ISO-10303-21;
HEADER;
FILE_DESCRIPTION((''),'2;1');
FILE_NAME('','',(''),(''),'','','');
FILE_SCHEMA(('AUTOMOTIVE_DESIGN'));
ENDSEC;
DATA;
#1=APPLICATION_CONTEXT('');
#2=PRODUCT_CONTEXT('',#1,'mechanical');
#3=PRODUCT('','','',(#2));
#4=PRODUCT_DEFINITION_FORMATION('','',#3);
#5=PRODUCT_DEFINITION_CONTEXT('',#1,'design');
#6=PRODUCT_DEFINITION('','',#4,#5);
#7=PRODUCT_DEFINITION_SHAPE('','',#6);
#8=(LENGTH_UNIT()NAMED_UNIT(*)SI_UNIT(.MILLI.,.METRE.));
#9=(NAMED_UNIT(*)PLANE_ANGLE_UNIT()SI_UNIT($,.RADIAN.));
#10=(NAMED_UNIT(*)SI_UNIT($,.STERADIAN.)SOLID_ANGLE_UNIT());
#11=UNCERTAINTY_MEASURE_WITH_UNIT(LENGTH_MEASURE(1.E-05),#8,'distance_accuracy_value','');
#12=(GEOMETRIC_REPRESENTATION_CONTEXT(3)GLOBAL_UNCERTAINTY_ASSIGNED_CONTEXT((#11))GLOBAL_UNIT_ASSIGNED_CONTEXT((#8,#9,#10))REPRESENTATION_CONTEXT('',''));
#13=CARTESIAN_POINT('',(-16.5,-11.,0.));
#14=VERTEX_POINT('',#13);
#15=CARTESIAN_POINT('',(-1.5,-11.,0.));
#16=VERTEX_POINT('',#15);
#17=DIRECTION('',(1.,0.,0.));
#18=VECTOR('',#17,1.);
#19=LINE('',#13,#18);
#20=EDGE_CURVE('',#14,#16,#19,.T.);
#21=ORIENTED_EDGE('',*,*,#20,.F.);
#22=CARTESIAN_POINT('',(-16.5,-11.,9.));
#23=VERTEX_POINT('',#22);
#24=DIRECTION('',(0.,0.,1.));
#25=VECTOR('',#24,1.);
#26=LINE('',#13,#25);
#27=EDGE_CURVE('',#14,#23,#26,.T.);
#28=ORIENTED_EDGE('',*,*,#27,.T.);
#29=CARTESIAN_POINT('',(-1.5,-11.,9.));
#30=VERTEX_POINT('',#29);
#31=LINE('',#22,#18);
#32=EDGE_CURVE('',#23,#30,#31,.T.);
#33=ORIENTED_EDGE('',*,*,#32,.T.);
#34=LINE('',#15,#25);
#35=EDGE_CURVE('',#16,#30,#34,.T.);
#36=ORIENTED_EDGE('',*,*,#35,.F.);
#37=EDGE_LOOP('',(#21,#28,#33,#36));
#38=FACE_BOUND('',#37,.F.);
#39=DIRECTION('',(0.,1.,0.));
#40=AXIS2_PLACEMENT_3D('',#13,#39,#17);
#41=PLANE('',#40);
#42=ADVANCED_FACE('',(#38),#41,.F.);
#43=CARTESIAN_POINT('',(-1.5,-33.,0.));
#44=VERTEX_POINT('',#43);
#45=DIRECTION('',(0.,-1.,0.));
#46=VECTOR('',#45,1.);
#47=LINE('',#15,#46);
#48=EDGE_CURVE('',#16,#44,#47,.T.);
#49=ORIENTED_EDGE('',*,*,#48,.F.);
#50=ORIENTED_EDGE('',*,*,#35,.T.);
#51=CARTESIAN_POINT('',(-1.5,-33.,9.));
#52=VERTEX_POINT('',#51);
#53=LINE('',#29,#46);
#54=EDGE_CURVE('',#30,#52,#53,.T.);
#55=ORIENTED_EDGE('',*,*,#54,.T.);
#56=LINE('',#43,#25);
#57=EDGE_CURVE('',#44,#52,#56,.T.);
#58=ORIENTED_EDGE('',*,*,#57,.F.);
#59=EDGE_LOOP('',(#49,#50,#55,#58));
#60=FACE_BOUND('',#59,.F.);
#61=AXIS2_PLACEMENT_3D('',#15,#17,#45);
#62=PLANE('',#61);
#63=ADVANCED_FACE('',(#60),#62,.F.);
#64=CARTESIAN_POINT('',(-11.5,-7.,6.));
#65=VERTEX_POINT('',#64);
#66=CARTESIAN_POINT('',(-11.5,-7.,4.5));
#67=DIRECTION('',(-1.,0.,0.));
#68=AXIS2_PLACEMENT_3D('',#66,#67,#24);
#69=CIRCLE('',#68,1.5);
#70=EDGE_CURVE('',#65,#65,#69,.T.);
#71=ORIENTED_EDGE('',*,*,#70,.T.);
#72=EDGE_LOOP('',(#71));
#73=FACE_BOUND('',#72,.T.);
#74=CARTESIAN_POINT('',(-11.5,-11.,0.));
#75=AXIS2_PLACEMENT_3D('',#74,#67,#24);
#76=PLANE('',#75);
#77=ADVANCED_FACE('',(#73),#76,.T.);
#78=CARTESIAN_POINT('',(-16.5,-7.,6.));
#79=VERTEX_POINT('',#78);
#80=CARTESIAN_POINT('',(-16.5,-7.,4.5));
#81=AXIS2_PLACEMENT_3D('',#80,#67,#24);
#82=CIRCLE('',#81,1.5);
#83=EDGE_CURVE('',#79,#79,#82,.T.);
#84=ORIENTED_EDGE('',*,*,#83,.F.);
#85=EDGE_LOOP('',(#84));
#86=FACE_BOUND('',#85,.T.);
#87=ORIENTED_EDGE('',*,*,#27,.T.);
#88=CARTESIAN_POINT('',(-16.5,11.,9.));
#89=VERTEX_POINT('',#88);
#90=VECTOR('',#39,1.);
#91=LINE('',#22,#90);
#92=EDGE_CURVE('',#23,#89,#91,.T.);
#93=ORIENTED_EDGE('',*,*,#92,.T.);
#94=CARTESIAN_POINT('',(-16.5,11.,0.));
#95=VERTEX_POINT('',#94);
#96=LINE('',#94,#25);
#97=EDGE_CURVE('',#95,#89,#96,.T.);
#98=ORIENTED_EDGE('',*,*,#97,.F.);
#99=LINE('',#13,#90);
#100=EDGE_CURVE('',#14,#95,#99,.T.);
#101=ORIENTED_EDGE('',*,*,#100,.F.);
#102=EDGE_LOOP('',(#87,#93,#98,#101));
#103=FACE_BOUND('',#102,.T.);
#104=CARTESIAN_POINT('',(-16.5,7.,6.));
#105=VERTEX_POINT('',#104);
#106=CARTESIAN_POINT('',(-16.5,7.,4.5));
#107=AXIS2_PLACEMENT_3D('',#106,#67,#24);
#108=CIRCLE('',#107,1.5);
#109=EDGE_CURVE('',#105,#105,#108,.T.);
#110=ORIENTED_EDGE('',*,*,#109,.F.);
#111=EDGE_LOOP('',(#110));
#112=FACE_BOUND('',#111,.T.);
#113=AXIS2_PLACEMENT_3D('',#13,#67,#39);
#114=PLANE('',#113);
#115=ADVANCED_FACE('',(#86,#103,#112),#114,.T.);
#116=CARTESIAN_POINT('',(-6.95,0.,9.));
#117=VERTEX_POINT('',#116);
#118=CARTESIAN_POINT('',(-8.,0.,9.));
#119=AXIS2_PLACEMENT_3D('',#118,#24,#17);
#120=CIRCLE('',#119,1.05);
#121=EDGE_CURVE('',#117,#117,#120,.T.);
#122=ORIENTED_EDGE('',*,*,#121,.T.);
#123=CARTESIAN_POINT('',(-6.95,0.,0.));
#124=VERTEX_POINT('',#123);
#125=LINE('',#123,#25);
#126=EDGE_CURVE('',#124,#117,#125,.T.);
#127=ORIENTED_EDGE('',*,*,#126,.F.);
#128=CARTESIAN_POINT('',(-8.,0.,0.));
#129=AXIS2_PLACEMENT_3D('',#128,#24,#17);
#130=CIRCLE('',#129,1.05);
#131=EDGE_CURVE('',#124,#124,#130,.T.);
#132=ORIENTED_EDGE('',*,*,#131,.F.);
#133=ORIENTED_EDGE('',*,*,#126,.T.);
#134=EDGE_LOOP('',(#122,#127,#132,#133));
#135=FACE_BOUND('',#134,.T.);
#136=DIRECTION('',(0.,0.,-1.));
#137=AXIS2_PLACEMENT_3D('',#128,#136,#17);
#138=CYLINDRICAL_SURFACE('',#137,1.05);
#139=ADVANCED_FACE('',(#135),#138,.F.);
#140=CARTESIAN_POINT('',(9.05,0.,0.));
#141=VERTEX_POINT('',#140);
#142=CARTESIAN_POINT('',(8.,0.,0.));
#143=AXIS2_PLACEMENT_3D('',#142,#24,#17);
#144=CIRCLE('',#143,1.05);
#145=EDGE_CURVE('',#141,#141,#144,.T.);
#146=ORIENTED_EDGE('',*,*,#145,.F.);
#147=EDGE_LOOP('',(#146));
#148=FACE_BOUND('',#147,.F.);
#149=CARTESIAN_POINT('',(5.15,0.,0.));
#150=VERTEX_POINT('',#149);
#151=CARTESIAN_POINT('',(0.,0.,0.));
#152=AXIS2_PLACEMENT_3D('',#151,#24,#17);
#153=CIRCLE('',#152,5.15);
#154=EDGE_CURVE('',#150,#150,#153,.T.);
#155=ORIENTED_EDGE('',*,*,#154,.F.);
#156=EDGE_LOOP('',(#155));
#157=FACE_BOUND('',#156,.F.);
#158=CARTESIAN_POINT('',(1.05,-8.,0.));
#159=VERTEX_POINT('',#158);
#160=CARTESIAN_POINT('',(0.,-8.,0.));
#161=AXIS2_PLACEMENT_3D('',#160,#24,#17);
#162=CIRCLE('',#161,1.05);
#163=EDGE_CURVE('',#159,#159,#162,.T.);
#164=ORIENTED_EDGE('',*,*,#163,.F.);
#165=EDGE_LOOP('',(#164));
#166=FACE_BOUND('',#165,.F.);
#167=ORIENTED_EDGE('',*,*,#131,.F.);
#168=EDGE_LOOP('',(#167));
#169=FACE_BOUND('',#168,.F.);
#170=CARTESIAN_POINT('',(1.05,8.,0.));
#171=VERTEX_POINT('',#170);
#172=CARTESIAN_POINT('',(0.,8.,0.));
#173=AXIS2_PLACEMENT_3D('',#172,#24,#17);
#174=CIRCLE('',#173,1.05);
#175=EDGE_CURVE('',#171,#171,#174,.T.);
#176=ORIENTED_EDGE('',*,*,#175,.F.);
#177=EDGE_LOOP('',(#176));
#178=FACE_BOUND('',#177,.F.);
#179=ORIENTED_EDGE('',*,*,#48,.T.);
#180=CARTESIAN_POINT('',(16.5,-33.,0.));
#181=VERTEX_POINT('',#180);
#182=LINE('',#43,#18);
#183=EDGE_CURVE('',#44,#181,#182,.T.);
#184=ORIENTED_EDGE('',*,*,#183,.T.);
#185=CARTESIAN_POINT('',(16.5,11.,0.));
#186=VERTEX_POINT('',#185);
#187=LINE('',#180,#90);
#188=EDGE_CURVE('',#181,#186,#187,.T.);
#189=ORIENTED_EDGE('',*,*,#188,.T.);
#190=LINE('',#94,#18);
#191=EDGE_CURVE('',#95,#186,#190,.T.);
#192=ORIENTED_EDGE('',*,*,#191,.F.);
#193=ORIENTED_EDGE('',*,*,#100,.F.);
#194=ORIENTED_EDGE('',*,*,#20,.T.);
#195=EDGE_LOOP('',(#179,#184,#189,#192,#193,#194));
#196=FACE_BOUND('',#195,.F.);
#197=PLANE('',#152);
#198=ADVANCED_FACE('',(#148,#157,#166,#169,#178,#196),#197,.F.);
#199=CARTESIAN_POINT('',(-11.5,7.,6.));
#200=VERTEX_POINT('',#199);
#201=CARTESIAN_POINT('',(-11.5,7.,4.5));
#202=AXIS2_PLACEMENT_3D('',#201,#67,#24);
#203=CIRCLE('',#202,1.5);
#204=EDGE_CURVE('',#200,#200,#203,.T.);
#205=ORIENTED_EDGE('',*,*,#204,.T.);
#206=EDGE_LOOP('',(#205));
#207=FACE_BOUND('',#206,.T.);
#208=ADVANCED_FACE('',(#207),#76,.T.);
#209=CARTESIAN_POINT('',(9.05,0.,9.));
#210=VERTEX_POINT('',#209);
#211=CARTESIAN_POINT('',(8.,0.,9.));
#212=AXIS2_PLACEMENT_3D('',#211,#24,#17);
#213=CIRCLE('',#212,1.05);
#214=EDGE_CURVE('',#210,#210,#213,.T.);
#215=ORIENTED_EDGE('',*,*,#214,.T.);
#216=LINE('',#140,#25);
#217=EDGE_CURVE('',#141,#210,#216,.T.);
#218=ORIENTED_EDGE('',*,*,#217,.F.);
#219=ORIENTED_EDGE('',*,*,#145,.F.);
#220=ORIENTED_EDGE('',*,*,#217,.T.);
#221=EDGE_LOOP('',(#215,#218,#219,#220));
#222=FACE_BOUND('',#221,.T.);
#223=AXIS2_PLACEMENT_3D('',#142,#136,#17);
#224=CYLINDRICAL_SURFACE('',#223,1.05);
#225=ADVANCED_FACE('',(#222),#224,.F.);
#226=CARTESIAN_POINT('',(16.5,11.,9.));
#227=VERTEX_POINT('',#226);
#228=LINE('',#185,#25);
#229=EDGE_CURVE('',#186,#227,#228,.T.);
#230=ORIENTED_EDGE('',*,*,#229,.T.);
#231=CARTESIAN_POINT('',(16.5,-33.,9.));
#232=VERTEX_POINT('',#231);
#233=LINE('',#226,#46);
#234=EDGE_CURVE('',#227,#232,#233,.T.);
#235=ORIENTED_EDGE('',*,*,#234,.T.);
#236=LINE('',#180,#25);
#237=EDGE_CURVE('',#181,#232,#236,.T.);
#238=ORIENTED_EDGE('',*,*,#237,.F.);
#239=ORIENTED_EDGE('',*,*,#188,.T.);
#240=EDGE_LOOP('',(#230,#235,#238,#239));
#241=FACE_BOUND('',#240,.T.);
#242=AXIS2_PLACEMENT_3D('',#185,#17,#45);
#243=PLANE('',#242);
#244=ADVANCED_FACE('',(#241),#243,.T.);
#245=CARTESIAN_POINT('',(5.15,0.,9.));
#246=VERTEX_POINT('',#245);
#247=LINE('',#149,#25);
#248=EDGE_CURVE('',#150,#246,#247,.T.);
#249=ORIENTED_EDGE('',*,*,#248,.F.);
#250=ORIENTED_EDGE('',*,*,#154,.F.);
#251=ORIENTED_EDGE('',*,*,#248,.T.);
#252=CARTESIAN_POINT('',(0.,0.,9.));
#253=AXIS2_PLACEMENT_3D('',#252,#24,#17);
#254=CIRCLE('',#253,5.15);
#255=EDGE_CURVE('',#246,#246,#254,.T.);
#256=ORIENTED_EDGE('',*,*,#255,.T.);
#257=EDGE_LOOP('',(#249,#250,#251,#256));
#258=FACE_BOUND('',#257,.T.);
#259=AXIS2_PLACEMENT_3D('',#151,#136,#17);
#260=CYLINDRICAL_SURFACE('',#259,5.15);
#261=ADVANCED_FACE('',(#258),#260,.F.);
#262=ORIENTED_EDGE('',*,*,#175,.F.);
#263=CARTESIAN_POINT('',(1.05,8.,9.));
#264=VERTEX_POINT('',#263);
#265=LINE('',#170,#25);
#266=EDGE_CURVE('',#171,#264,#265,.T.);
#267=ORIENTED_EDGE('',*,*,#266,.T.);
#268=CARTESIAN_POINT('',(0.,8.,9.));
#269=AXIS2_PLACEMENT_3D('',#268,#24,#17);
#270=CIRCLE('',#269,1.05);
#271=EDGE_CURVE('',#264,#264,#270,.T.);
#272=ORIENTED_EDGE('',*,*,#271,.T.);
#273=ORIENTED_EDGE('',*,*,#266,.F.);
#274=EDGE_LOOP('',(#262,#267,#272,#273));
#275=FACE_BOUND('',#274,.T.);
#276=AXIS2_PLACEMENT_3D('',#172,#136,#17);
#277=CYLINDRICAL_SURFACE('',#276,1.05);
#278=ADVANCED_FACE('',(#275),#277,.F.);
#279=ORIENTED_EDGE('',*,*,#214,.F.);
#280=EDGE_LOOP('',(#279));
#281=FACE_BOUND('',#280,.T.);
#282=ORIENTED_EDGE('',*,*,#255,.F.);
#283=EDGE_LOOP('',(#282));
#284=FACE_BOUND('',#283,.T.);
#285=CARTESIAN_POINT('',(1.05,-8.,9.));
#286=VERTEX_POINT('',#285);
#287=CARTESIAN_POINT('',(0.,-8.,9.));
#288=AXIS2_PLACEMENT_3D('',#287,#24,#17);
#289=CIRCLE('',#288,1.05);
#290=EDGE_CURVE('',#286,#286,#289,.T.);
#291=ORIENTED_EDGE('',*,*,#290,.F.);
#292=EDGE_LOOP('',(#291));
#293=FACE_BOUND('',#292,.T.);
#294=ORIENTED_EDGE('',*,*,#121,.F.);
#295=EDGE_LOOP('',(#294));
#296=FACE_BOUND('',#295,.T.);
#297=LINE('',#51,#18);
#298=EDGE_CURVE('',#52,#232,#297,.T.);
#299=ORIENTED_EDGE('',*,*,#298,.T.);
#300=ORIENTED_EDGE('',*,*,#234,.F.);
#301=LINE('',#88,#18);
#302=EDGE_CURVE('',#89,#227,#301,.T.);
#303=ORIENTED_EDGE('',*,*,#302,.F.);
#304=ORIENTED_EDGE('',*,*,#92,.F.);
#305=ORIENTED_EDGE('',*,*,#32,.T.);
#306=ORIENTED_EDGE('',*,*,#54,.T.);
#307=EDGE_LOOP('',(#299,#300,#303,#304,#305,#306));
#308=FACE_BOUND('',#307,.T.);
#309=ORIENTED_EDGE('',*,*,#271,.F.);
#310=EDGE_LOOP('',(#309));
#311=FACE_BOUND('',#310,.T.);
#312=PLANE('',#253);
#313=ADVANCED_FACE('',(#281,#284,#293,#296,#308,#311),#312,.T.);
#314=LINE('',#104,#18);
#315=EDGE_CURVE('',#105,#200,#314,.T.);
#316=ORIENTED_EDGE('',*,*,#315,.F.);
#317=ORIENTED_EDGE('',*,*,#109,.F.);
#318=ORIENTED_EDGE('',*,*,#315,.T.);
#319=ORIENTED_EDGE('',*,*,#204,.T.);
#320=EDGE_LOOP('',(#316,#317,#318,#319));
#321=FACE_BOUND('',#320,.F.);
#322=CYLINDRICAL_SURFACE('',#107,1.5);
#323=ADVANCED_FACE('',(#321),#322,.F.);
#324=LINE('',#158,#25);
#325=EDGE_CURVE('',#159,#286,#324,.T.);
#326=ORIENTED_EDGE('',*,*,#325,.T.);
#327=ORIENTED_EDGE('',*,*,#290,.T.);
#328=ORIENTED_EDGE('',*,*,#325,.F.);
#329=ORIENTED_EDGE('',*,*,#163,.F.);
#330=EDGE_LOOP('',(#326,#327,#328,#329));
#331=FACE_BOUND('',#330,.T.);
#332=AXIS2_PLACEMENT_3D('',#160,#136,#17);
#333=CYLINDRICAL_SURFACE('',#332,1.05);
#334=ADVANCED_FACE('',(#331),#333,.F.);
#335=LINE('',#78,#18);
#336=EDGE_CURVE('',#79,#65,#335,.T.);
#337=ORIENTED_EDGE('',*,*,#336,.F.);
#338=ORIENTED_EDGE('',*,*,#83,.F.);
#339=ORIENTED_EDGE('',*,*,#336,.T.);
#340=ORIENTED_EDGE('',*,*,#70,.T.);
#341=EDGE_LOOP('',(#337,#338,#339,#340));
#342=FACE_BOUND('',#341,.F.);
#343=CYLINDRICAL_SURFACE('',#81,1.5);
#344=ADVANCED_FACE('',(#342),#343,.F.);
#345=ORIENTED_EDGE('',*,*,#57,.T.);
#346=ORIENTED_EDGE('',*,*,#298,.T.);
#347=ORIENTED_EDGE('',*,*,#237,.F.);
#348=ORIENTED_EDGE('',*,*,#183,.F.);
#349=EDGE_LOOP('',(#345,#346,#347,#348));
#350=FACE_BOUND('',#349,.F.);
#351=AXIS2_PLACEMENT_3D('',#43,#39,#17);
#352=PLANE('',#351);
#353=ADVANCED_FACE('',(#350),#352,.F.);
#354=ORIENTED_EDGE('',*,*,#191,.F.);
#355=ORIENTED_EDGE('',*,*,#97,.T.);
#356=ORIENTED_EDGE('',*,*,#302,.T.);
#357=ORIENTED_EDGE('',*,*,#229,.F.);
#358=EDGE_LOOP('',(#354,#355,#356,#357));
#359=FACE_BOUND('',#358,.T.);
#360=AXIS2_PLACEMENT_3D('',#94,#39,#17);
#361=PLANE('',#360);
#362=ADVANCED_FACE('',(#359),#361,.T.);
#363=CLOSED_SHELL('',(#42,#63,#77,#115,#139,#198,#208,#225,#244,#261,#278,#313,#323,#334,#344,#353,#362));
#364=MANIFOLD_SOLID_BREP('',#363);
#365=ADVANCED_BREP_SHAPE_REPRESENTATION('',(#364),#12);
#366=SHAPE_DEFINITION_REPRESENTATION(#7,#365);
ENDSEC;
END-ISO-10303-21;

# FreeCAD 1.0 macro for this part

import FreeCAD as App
import Part
import Sketcher

V = App.Vector
Q = App.Units.Quantity

doc = App.newDocument("Part")
body = doc.addObject("PartDesign::Body", "Body")

# Sketch on XY plane
sketch1 = body.newObject("Sketcher::SketchObject", "Sketch")
sketch1.AttachmentSupport = (doc.getObject("XY_Plane"), [""])
sketch1.MapMode = "FlatFace"
sketch1.addGeometry([
    Part.LineSegment(V(16.5, 11, 0), V(-16.5, 11, 0)),  # 0
    Part.LineSegment(V(-16.5, 11, 0), V(-16.5, -11, 0)),  # 1
    Part.LineSegment(V(-16.5, -11, 0), V(-1.5, -11, 0)),  # 2
    Part.LineSegment(V(-1.5, -11, 0), V(-1.5, -33, 0)),  # 3
    Part.LineSegment(V(-1.5, -33, 0), V(16.5, -33, 0)),  # 4
    Part.LineSegment(V(16.5, -33, 0), V(16.5, 11, 0)),  # 5
    Part.Circle(V(-8, 0, 0), V(0, 0, 1), 1.05),  # 6
    Part.Circle(V(0, -8, 0), V(0, 0, 1), 1.05),  # 7
    Part.Circle(V(0, 0, 0), V(0, 0, 1), 5.15),  # 8
    Part.Circle(V(8, 0, 0), V(0, 0, 1), 1.05),  # 9
    Part.Circle(V(0, 8, 0), V(0, 0, 1), 1.05),  # 10
], False)
sketch1.addConstraint([
    Sketcher.Constraint("Coincident", 0, 2, 1, 1),
    Sketcher.Constraint("Coincident", 1, 2, 2, 1),
    Sketcher.Constraint("Coincident", 2, 2, 3, 1),
    Sketcher.Constraint("Coincident", 3, 2, 4, 1),
    Sketcher.Constraint("Coincident", 4, 2, 5, 1),
    Sketcher.Constraint("Coincident", 5, 2, 0, 1),
    Sketcher.Constraint("Horizontal", 0),
    Sketcher.Constraint("Vertical", 1),
    Sketcher.Constraint("Horizontal", 2),
    Sketcher.Constraint("Vertical", 3),
    Sketcher.Constraint("Horizontal", 4),
    Sketcher.Constraint("Vertical", 5),
    Sketcher.Constraint("Coincident", 8, 3, -1, 1),
    Sketcher.Constraint("Equal", 6, 7),
    Sketcher.Constraint("Equal", 7, 9),
    Sketcher.Constraint("Equal", 9, 10),
    Sketcher.Constraint("Symmetric", 6, 3, 9, 3, -1, 1),
    Sketcher.Constraint("Symmetric", 7, 3, 10, 3, -1, 1),
    Sketcher.Constraint("Symmetric", 1, 2, 5, 2, -1, 1),
    Sketcher.Constraint("PointOnObject", 6, 3, -1),
    Sketcher.Constraint("PointOnObject", 7, 3, -2),
    Sketcher.Constraint("Equal", 1, 3),
    Sketcher.Constraint("Diameter", 6, Q("2.1 mm")),
    Sketcher.Constraint("Diameter", 8, Q("10.3 mm")),
    Sketcher.Constraint("DistanceX", 0, 2, 0, 1, Q("33 mm")),
    Sketcher.Constraint("DistanceX", 2, 1, 2, 2, Q("15 mm")),
    Sketcher.Constraint("DistanceY", 1, 2, 1, 1, Q("22 mm")),
    Sketcher.Constraint("DistanceX", 6, 3, -1, 1, Q("8 mm")),
    Sketcher.Constraint("DistanceY", 7, 3, -1, 1, Q("8 mm")),
])
pad1 = body.newObject("PartDesign::Pad", "Pad")
pad1.Profile = sketch1
pad1.Length = 9

# Sketch on YZ plane
sketch2 = body.newObject("Sketcher::SketchObject", "Sketch001")
sketch2.AttachmentSupport = (doc.getObject("YZ_Plane"), [""])
sketch2.MapMode = "FlatFace"
sketch2.AttachmentOffset = App.Placement(V(0, 0, -16.5), App.Rotation())
sketch2.addGeometry([
    Part.Circle(V(-7, 4.5, 0), V(0, 0, 1), 1.5),
    Part.Circle(V(7, 4.5, 0), V(0, 0, 1), 1.5),
], False)
sketch2.addConstraint([
    Sketcher.Constraint("Equal", 0, 1),
    Sketcher.Constraint("Symmetric", 0, 3, 1, 3, -2),
    Sketcher.Constraint("Diameter", 0, Q("3 mm")),
    Sketcher.Constraint("DistanceX", 0, 3, -1, 1, Q("7 mm")),
    Sketcher.Constraint("DistanceY", -1, 1, 0, 3, Q("4.5 mm")),
])
pocket1 = body.newObject("PartDesign::Pocket", "Pocket")
pocket1.Profile = sketch2
pocket1.Length = 5
pocket1.Reversed = True

doc.recompute()
